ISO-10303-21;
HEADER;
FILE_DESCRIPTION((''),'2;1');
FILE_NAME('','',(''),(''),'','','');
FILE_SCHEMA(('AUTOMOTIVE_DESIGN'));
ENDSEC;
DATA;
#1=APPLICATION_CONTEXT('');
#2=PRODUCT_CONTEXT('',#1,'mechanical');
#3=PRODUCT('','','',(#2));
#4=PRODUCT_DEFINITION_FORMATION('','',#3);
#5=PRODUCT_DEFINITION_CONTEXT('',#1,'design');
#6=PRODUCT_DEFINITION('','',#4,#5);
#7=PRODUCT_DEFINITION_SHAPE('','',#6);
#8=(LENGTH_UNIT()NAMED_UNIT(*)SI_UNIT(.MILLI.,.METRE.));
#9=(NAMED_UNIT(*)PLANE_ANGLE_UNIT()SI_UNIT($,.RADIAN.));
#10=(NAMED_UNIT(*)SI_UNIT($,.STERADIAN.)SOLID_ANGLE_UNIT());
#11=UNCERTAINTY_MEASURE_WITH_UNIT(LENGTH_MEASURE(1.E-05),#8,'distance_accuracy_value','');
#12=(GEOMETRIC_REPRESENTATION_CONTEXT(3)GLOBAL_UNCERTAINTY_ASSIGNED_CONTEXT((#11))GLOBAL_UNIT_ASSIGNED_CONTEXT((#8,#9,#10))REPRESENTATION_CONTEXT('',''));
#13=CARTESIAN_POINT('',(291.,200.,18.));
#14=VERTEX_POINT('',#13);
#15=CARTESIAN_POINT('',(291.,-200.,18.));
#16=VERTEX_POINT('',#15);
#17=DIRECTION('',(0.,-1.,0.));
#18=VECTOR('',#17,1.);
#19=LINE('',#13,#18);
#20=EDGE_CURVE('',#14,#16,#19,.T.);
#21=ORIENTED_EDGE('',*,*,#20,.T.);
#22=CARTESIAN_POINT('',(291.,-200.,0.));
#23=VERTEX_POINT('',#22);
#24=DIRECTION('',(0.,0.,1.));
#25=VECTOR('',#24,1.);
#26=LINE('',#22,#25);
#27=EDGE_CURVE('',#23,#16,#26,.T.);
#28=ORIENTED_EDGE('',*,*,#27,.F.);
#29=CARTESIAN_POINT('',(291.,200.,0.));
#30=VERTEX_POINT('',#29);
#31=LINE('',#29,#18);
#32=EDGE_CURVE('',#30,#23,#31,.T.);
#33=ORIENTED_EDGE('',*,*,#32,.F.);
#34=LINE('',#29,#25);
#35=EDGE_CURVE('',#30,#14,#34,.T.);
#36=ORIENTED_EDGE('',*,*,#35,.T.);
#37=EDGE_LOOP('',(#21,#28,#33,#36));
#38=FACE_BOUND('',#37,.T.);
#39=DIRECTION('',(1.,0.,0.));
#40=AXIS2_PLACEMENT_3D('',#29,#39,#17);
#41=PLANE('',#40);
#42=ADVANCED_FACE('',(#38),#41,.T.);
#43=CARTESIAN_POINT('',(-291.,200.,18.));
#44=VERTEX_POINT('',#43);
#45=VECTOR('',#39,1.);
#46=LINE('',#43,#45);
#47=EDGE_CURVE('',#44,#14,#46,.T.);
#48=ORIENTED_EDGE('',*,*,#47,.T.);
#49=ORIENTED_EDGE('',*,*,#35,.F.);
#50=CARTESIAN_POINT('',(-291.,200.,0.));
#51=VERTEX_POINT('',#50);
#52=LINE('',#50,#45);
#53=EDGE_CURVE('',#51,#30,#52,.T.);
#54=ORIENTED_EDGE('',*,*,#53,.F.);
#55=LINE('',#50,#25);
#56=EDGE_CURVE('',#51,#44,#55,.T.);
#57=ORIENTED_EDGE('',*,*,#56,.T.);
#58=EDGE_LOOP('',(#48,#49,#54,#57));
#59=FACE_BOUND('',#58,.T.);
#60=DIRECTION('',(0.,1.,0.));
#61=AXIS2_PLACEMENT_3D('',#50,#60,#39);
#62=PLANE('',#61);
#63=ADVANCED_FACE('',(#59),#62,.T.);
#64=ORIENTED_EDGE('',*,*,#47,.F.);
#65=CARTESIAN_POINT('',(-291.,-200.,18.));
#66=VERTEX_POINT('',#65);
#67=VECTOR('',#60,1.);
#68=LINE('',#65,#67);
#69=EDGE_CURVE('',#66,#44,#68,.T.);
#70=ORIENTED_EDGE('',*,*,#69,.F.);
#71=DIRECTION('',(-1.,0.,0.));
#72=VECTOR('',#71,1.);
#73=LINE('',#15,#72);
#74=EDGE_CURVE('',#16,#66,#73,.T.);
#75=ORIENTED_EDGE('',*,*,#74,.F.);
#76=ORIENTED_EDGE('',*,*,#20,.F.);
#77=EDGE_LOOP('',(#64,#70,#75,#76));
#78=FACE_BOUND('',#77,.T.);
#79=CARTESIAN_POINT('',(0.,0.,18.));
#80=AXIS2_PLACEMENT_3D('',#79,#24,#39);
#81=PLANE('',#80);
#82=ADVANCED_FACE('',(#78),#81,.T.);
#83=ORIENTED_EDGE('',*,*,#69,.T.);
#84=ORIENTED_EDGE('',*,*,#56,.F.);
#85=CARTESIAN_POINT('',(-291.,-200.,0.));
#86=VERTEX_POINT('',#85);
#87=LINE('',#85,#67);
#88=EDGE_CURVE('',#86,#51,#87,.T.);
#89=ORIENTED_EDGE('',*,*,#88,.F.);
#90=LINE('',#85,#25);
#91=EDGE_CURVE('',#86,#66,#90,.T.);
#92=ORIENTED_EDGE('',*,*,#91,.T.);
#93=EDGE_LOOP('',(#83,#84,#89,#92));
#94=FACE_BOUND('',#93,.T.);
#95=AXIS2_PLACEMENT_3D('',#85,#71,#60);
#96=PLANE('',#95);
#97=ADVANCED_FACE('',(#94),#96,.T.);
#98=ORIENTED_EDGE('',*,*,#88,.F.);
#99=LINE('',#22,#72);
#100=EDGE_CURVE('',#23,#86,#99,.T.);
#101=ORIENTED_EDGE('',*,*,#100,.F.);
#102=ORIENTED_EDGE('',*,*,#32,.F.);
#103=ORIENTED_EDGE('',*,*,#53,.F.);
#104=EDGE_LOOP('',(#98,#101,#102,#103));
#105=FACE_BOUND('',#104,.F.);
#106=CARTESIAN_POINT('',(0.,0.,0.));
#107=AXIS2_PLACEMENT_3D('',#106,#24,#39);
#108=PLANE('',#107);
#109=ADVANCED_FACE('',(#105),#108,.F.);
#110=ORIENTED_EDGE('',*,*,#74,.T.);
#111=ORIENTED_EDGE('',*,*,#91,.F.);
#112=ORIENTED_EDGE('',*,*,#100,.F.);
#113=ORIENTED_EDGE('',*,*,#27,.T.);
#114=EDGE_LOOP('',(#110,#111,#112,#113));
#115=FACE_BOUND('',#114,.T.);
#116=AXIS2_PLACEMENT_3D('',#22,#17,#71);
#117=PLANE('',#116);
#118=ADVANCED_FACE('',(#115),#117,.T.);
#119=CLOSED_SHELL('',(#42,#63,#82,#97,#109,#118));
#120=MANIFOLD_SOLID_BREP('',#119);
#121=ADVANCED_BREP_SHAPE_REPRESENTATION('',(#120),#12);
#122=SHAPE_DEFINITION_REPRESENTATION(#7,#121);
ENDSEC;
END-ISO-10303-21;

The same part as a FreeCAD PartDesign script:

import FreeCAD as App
import Part
import Sketcher


def add_polygon(sketch, points):
    """Adds a closed chain of lines whose ends are joined by coincident constraints."""
    first, n = sketch.GeometryCount, len(points)
    for a, b in zip(points, points[1:] + points[:1]):
        sketch.addGeometry(Part.LineSegment(App.Vector(*a, 0), App.Vector(*b, 0)), False)
    for i in range(n):
        sketch.addConstraint(Sketcher.Constraint("Coincident", first + i, 2, first + (i + 1) % n, 1))

doc = App.newDocument("Part")
body = doc.addObject("PartDesign::Body", "Body")

# Sketch on XY plane
sketch1 = body.newObject("Sketcher::SketchObject", "Sketch")
sketch1.AttachmentSupport = (doc.getObject("XY_Plane"), [""])
sketch1.MapMode = "FlatFace"
add_polygon(sketch1, [(-291, -200), (291, -200), (291, 200), (-291, 200)])  # lines 0-3
sketch1.addConstraint([
    Sketcher.Constraint("Horizontal", 0),
    Sketcher.Constraint("Vertical", 1),
    Sketcher.Constraint("Horizontal", 2),
    Sketcher.Constraint("Vertical", 3),
    Sketcher.Constraint("Symmetric", 0, 2, 2, 2, -1, 1),
    Sketcher.Constraint("DistanceX", 0, 1, 0, 2, 582.0),
    Sketcher.Constraint("DistanceY", 1, 1, 1, 2, 400.0),
])
pad1 = body.newObject("PartDesign::Pad", "Pad")
pad1.Profile = sketch1
pad1.Length = 18

doc.recompute()
